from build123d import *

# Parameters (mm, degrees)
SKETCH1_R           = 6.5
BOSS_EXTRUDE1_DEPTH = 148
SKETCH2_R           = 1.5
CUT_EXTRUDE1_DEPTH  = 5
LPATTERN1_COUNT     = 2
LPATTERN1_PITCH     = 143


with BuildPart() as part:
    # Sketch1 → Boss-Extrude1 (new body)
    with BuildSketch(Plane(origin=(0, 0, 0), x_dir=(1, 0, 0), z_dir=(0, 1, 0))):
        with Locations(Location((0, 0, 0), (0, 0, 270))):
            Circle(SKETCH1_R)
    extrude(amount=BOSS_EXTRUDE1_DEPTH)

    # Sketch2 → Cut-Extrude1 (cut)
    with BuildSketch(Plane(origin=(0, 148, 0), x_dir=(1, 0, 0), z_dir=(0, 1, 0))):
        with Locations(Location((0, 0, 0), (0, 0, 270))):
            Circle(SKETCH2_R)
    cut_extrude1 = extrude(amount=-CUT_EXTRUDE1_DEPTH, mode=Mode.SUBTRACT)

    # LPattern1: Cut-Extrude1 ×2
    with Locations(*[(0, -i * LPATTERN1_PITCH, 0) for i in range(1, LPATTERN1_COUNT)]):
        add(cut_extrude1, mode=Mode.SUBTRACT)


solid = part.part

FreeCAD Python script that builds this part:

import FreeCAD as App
import Part
import Sketcher
from FreeCAD import Vector
Q = App.Units.Quantity

doc = App.newDocument("Part")
params = doc.addObject("Spreadsheet::Sheet", "Params")
for row, (alias, value) in enumerate([
    ("sketch1_diameter", "13 mm"),
    ("pad1_length", "148 mm"),
    ("sketch2_diameter", "3 mm"),
    ("pocket1_length", "5 mm"),
    ("linearpattern_pitch", "143 mm"),
], start=1):
    params.set(f"A{row}", alias)
    params.set(f"B{row}", "=" + value)
    params.setAlias(f"B{row}", alias)

body = doc.addObject("PartDesign::Body", "Body")

# Sketch on XZ plane
sketch1 = body.newObject("Sketcher::SketchObject", "Sketch")
sketch1.AttachmentSupport = (doc.getObject("XZ_Plane"), [""])
sketch1.MapMode = "FlatFace"
sketch1.addGeometry(Part.Circle(Vector(0, 0, 0), Vector(0, 0, 1), 6), False)
sketch1.addConstraint([
    Sketcher.Constraint("Coincident", 0, 3, -1, 1),
    Sketcher.Constraint("Diameter", 0, Q("13 mm")),
])
sketch1.setExpression("Constraints[1]", "Params.sketch1_diameter")
pad1 = body.newObject("PartDesign::Pad", "Pad")
pad1.Profile = sketch1
pad1.setExpression("Length", "Params.pad1_length")
pad1.Reversed = True

# Sketch on XZ plane
sketch2 = body.newObject("Sketcher::SketchObject", "Sketch001")
sketch2.AttachmentSupport = (doc.getObject("XZ_Plane"), [""])
sketch2.MapMode = "FlatFace"
sketch2.AttachmentOffset = App.Placement(Vector(0, 0, -148), App.Rotation())
sketch2.addGeometry(Part.Circle(Vector(0, 0, 0), Vector(0, 0, 1), 1.5), False)
sketch2.addConstraint([
    Sketcher.Constraint("Coincident", 0, 3, -1, 1),
    Sketcher.Constraint("Diameter", 0, Q("3 mm")),
])
sketch2.setExpression("Constraints[1]", "Params.sketch2_diameter")
pocket1 = body.newObject("PartDesign::Pocket", "Pocket")
pocket1.Profile = sketch2
pocket1.setExpression("Length", "Params.pocket1_length")
pocket1.Reversed = True
doc.recompute()

linearpattern = body.newObject("PartDesign::LinearPattern", "LinearPattern")
linearpattern.Originals = [pocket1]
linearpattern.Direction = (doc.getObject("Y_Axis"), [""])
linearpattern.Mode = "offset"
linearpattern.setExpression("Offset", "Params.linearpattern_pitch")
linearpattern.Occurrences = 2
linearpattern.Reversed = True
body.Tip = linearpattern

doc.recompute()
